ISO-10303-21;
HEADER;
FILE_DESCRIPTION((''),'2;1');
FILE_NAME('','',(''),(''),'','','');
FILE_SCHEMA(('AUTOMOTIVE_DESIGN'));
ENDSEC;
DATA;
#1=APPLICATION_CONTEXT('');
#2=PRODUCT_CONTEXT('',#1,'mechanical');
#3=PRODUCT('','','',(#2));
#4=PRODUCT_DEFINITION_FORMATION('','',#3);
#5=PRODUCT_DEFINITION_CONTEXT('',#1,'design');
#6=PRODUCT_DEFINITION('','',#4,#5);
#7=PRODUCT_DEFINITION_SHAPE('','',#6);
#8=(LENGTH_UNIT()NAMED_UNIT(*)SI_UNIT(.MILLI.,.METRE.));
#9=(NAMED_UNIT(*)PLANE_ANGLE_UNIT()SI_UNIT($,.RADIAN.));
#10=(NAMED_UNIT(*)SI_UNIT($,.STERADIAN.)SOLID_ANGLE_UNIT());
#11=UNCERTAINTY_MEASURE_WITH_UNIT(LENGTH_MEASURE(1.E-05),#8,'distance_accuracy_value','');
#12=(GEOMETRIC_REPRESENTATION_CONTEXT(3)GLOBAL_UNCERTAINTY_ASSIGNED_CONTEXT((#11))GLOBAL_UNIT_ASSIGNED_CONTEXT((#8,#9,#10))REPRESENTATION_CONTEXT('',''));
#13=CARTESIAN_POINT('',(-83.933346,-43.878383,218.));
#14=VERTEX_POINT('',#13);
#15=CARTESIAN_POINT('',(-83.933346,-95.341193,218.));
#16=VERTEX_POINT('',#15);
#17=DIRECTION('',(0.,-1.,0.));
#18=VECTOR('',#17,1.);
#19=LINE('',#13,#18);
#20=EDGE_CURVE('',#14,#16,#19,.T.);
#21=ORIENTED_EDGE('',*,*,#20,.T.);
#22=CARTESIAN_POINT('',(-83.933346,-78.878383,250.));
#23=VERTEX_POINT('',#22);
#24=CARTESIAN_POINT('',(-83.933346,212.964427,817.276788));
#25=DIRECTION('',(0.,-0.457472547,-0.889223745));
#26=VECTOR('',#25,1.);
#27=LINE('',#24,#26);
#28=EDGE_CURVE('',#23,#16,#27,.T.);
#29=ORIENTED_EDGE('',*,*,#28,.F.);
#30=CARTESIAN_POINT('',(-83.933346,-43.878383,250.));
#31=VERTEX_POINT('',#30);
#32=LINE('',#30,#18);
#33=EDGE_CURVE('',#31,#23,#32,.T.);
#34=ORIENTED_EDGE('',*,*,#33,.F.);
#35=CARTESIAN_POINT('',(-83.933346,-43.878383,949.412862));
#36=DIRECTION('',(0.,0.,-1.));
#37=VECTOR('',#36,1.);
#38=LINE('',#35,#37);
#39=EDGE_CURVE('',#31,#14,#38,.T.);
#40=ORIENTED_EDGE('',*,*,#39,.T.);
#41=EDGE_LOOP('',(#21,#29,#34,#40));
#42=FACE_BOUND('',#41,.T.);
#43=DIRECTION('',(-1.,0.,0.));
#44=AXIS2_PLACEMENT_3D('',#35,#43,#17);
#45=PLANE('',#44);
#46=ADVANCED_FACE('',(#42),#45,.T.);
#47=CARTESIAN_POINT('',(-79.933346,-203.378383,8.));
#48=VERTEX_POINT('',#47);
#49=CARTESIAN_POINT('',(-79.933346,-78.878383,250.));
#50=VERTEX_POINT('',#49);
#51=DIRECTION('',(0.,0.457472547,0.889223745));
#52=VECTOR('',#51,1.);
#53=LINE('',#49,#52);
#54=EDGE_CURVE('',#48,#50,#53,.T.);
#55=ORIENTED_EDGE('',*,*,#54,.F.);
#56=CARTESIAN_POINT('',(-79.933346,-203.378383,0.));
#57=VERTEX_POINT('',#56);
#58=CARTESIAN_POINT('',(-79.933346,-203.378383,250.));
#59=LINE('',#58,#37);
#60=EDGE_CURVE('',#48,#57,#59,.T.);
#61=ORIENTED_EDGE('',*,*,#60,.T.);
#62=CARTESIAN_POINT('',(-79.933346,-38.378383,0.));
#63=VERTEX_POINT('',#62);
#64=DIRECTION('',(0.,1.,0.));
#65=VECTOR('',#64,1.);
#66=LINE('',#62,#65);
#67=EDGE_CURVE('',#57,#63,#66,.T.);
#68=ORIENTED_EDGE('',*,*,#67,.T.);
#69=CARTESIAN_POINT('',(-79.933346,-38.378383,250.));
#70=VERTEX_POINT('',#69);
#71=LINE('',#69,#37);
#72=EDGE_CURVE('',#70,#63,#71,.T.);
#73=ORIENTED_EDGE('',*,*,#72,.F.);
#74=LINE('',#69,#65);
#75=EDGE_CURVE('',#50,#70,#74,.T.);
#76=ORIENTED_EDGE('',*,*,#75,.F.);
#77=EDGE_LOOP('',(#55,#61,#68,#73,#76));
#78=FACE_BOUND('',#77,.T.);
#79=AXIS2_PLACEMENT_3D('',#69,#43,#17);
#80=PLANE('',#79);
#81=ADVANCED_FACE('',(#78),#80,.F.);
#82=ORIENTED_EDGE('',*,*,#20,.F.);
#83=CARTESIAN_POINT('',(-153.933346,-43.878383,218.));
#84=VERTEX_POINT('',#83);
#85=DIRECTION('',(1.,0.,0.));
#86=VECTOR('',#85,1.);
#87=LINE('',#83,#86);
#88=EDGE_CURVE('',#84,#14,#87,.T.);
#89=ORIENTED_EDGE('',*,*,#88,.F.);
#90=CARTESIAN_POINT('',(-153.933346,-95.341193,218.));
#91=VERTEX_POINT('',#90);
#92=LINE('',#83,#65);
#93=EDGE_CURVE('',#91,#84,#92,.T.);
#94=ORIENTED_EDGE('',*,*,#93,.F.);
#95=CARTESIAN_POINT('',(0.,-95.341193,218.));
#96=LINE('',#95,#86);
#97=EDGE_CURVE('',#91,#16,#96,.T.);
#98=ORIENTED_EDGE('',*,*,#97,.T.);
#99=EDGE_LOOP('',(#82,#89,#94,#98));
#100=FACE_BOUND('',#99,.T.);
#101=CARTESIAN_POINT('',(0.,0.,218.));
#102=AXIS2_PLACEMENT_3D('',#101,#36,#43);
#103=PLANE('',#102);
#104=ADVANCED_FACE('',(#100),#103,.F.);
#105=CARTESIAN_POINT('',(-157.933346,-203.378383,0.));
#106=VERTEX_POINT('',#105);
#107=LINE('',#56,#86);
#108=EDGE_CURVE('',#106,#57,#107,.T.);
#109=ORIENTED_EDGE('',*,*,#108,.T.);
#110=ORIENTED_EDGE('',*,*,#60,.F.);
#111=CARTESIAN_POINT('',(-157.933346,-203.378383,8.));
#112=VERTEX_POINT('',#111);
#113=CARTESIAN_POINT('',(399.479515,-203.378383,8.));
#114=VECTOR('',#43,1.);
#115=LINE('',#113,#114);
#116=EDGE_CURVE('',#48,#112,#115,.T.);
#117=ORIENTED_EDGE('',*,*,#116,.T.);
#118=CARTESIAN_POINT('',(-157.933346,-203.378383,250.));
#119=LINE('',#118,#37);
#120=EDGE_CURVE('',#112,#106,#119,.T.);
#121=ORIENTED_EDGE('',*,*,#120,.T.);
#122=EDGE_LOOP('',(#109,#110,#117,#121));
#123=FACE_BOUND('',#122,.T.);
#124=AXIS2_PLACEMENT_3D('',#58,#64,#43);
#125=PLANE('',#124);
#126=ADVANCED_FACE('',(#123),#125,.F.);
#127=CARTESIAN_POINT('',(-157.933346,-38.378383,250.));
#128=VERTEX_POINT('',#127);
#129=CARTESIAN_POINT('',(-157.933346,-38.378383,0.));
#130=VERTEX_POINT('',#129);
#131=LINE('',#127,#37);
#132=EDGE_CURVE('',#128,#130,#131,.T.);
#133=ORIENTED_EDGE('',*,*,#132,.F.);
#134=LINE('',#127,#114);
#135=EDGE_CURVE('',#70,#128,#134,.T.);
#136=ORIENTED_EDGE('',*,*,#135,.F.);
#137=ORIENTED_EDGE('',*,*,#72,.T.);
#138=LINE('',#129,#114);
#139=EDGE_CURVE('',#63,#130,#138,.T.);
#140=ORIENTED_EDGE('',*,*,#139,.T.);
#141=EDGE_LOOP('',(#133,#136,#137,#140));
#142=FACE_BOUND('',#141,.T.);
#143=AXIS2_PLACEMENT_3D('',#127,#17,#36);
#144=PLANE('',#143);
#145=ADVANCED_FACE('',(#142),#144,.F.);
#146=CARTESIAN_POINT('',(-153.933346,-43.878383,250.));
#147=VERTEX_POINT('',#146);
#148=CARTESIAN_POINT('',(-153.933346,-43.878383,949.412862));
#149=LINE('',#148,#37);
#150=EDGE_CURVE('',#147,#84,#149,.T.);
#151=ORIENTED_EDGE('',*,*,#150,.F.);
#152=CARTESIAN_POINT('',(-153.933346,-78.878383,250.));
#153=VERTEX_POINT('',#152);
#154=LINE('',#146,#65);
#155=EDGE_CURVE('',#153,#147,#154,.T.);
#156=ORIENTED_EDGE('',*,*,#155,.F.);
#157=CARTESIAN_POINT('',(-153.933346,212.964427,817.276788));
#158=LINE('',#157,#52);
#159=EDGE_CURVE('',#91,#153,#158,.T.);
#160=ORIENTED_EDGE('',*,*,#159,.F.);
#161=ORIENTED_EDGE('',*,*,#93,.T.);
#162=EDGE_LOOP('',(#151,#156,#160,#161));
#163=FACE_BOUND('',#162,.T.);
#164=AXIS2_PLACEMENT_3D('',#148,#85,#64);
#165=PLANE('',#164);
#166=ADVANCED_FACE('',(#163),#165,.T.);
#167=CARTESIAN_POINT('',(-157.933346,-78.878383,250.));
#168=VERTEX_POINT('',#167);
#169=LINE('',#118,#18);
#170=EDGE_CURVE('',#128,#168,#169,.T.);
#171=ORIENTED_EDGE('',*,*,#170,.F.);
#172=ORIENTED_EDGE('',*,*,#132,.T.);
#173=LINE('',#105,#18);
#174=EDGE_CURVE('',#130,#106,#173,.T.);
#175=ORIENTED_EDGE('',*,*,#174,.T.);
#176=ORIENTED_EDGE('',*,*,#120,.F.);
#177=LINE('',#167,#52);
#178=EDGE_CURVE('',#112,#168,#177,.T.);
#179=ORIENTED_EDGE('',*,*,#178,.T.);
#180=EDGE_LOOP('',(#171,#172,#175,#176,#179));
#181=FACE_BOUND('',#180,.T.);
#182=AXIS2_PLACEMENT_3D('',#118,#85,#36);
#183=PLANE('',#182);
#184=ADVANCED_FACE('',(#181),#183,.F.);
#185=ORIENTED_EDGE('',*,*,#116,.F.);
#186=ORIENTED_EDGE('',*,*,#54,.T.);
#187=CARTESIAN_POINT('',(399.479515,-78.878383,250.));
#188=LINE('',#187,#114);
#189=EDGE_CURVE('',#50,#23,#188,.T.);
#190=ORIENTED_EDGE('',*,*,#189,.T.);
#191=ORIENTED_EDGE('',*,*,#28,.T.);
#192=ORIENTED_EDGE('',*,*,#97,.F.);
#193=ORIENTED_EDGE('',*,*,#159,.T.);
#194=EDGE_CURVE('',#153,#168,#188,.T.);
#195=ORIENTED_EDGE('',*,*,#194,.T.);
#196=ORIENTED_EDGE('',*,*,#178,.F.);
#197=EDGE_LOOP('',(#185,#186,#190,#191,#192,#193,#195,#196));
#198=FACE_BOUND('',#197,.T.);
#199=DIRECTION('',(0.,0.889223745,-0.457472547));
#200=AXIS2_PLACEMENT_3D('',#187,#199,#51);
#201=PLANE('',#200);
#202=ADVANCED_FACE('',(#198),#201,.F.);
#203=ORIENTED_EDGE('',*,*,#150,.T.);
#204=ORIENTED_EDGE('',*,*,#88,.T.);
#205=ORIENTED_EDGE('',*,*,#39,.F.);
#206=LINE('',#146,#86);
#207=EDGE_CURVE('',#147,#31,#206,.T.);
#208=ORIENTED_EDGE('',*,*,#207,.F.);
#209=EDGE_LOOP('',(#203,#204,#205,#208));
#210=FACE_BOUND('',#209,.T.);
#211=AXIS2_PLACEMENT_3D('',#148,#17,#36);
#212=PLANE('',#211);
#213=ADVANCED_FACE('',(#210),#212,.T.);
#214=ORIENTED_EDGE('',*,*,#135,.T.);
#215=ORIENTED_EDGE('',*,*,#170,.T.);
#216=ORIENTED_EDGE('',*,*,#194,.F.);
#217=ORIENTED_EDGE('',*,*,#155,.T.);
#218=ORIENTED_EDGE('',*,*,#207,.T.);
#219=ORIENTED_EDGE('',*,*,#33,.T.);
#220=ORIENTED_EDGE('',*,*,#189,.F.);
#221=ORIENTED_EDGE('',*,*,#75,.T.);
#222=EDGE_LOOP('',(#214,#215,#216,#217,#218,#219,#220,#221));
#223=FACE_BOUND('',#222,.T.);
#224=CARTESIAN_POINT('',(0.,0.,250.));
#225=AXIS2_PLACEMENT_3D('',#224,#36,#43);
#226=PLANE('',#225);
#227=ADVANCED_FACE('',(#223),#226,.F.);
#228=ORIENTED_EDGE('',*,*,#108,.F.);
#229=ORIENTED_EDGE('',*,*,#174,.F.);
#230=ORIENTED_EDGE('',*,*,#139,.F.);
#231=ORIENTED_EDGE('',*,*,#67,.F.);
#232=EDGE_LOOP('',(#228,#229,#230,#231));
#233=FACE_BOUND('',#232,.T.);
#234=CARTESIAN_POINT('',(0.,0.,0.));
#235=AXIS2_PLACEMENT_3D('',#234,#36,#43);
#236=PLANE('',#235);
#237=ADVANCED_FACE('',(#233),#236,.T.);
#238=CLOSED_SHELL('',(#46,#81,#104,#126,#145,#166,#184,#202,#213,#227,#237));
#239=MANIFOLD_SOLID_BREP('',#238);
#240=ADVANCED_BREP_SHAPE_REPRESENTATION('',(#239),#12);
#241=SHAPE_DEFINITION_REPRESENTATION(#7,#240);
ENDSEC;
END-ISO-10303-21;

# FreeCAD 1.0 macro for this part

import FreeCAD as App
import Part
import Sketcher


def add_polygon(sketch, points):
    """Adds a closed chain of lines whose ends are joined by coincident constraints."""
    first, n = sketch.GeometryCount, len(points)
    for a, b in zip(points, points[1:] + points[:1]):
        sketch.addGeometry(Part.LineSegment(App.Vector(*a, 0), App.Vector(*b, 0)), False)
    for i in range(n):
        sketch.addConstraint(Sketcher.Constraint("Coincident", first + i, 2, first + (i + 1) % n, 1))

doc = App.newDocument("Part")
params = doc.addObject("Spreadsheet::Sheet", "Params")
for row, (alias, value) in enumerate([
    ("sketch1_width", "78 mm"),
    ("sketch1_height", "165 mm"),
    ("pad1_length", "250 mm"),
    ("sketch2_width", "70 mm"),
    ("pocket1_length", "359.895122 mm"),
    ("pocket1_length2", "32 mm"),
], start=1):
    params.set(f"A{row}", alias)
    params.set(f"B{row}", "=" + value)
    params.setAlias(f"B{row}", alias)

body = doc.addObject("PartDesign::Body", "Body")

# Sketch on XY plane
sketch1 = body.newObject("Sketcher::SketchObject", "Sketch")
sketch1.AttachmentSupport = (doc.getObject("XY_Plane"), [""])
sketch1.MapMode = "FlatFace"
add_polygon(sketch1, [(-158, -38), (-158, -203), (-80, -203), (-80, -38)])  # lines 0-3
sketch1.addConstraint([
    Sketcher.Constraint("Vertical", 0),
    Sketcher.Constraint("Horizontal", 1),
    Sketcher.Constraint("Vertical", 2),
    Sketcher.Constraint("Horizontal", 3),
    Sketcher.Constraint("DistanceX", 1, 1, 1, 2, 78.0),
    Sketcher.Constraint("DistanceY", 0, 2, 0, 1, 165.0),
    Sketcher.Constraint("DistanceX", 0, 2, -1, 1, 157.933346),
    Sketcher.Constraint("DistanceY", 0, 2, -1, 1, 203.378383),
])
sketch1.setExpression("Constraints[8]", "Params.sketch1_width")
sketch1.setExpression("Constraints[9]", "Params.sketch1_height")
pad1 = body.newObject("PartDesign::Pad", "Pad")
pad1.Profile = sketch1
pad1.setExpression("Length", "Params.pad1_length")

# Sketch on XY plane
sketch2 = body.newObject("Sketcher::SketchObject", "Sketch001")
sketch2.AttachmentSupport = (doc.getObject("XY_Plane"), [""])
sketch2.MapMode = "FlatFace"
sketch2.AttachmentOffset = App.Placement(App.Vector(0, 0, 250), App.Rotation())
add_polygon(sketch2, [(-84, -44), (-154, -44), (-154, -1318), (-84, -1318)])  # lines 0-3
sketch2.addConstraint([
    Sketcher.Constraint("Horizontal", 0),
    Sketcher.Constraint("Vertical", 1),
    Sketcher.Constraint("Horizontal", 2),
    Sketcher.Constraint("Vertical", 3),
    Sketcher.Constraint("DistanceX", 0, 2, 0, 1, 70.0),
    Sketcher.Constraint("DistanceY", 1, 2, 1, 1, 1274.505069),
    Sketcher.Constraint("DistanceX", 0, 2, -1, 1, 153.933346),
    Sketcher.Constraint("DistanceY", 0, 2, -1, 1, 43.878383),
])
sketch2.setExpression("Constraints[8]", "Params.sketch2_width")
pocket1 = body.newObject("PartDesign::Pocket", "Pocket")
pocket1.Profile = sketch2
pocket1.Type = "TwoLengths"
pocket1.setExpression("Length", "Params.pocket1_length")
pocket1.setExpression("Length2", "Params.pocket1_length2")
pocket1.Reversed = True

# Sketch on YZ plane
sketch3 = body.newObject("Sketcher::SketchObject", "Sketch002")
sketch3.AttachmentSupport = (doc.getObject("YZ_Plane"), [""])
sketch3.MapMode = "FlatFace"
sketch3.AttachmentOffset = App.Placement(App.Vector(0, 0, -79.933346), App.Rotation())
add_polygon(sketch3, [(-476, -522), (194, 780), (-866, 1325), (-1536, 23)])  # lines 0-3
sketch3.addConstraint([
    Sketcher.Constraint("Perpendicular", 0, 1),
    Sketcher.Constraint("Perpendicular", 1, 2),
    Sketcher.Constraint("Perpendicular", 2, 3),
    Sketcher.Constraint("Distance", 0, 1463.737851),
    Sketcher.Constraint("DistanceY", -1, 1, 1, 2, 1324.915109),
    Sketcher.Constraint("DistanceY", 2, 2, 0, 2, 756.470571),
    Sketcher.Constraint("DistanceX", 1, 2, 3, 2, 389.970571),
    Sketcher.Constraint("DistanceX", -1, 1, 0, 2, 193.681558),
])
pocket2 = body.newObject("PartDesign::Pocket", "Pocket001")
pocket2.Profile = sketch3
pocket2.Type = "ThroughAll"
pocket2.Midplane = True

doc.recompute()
